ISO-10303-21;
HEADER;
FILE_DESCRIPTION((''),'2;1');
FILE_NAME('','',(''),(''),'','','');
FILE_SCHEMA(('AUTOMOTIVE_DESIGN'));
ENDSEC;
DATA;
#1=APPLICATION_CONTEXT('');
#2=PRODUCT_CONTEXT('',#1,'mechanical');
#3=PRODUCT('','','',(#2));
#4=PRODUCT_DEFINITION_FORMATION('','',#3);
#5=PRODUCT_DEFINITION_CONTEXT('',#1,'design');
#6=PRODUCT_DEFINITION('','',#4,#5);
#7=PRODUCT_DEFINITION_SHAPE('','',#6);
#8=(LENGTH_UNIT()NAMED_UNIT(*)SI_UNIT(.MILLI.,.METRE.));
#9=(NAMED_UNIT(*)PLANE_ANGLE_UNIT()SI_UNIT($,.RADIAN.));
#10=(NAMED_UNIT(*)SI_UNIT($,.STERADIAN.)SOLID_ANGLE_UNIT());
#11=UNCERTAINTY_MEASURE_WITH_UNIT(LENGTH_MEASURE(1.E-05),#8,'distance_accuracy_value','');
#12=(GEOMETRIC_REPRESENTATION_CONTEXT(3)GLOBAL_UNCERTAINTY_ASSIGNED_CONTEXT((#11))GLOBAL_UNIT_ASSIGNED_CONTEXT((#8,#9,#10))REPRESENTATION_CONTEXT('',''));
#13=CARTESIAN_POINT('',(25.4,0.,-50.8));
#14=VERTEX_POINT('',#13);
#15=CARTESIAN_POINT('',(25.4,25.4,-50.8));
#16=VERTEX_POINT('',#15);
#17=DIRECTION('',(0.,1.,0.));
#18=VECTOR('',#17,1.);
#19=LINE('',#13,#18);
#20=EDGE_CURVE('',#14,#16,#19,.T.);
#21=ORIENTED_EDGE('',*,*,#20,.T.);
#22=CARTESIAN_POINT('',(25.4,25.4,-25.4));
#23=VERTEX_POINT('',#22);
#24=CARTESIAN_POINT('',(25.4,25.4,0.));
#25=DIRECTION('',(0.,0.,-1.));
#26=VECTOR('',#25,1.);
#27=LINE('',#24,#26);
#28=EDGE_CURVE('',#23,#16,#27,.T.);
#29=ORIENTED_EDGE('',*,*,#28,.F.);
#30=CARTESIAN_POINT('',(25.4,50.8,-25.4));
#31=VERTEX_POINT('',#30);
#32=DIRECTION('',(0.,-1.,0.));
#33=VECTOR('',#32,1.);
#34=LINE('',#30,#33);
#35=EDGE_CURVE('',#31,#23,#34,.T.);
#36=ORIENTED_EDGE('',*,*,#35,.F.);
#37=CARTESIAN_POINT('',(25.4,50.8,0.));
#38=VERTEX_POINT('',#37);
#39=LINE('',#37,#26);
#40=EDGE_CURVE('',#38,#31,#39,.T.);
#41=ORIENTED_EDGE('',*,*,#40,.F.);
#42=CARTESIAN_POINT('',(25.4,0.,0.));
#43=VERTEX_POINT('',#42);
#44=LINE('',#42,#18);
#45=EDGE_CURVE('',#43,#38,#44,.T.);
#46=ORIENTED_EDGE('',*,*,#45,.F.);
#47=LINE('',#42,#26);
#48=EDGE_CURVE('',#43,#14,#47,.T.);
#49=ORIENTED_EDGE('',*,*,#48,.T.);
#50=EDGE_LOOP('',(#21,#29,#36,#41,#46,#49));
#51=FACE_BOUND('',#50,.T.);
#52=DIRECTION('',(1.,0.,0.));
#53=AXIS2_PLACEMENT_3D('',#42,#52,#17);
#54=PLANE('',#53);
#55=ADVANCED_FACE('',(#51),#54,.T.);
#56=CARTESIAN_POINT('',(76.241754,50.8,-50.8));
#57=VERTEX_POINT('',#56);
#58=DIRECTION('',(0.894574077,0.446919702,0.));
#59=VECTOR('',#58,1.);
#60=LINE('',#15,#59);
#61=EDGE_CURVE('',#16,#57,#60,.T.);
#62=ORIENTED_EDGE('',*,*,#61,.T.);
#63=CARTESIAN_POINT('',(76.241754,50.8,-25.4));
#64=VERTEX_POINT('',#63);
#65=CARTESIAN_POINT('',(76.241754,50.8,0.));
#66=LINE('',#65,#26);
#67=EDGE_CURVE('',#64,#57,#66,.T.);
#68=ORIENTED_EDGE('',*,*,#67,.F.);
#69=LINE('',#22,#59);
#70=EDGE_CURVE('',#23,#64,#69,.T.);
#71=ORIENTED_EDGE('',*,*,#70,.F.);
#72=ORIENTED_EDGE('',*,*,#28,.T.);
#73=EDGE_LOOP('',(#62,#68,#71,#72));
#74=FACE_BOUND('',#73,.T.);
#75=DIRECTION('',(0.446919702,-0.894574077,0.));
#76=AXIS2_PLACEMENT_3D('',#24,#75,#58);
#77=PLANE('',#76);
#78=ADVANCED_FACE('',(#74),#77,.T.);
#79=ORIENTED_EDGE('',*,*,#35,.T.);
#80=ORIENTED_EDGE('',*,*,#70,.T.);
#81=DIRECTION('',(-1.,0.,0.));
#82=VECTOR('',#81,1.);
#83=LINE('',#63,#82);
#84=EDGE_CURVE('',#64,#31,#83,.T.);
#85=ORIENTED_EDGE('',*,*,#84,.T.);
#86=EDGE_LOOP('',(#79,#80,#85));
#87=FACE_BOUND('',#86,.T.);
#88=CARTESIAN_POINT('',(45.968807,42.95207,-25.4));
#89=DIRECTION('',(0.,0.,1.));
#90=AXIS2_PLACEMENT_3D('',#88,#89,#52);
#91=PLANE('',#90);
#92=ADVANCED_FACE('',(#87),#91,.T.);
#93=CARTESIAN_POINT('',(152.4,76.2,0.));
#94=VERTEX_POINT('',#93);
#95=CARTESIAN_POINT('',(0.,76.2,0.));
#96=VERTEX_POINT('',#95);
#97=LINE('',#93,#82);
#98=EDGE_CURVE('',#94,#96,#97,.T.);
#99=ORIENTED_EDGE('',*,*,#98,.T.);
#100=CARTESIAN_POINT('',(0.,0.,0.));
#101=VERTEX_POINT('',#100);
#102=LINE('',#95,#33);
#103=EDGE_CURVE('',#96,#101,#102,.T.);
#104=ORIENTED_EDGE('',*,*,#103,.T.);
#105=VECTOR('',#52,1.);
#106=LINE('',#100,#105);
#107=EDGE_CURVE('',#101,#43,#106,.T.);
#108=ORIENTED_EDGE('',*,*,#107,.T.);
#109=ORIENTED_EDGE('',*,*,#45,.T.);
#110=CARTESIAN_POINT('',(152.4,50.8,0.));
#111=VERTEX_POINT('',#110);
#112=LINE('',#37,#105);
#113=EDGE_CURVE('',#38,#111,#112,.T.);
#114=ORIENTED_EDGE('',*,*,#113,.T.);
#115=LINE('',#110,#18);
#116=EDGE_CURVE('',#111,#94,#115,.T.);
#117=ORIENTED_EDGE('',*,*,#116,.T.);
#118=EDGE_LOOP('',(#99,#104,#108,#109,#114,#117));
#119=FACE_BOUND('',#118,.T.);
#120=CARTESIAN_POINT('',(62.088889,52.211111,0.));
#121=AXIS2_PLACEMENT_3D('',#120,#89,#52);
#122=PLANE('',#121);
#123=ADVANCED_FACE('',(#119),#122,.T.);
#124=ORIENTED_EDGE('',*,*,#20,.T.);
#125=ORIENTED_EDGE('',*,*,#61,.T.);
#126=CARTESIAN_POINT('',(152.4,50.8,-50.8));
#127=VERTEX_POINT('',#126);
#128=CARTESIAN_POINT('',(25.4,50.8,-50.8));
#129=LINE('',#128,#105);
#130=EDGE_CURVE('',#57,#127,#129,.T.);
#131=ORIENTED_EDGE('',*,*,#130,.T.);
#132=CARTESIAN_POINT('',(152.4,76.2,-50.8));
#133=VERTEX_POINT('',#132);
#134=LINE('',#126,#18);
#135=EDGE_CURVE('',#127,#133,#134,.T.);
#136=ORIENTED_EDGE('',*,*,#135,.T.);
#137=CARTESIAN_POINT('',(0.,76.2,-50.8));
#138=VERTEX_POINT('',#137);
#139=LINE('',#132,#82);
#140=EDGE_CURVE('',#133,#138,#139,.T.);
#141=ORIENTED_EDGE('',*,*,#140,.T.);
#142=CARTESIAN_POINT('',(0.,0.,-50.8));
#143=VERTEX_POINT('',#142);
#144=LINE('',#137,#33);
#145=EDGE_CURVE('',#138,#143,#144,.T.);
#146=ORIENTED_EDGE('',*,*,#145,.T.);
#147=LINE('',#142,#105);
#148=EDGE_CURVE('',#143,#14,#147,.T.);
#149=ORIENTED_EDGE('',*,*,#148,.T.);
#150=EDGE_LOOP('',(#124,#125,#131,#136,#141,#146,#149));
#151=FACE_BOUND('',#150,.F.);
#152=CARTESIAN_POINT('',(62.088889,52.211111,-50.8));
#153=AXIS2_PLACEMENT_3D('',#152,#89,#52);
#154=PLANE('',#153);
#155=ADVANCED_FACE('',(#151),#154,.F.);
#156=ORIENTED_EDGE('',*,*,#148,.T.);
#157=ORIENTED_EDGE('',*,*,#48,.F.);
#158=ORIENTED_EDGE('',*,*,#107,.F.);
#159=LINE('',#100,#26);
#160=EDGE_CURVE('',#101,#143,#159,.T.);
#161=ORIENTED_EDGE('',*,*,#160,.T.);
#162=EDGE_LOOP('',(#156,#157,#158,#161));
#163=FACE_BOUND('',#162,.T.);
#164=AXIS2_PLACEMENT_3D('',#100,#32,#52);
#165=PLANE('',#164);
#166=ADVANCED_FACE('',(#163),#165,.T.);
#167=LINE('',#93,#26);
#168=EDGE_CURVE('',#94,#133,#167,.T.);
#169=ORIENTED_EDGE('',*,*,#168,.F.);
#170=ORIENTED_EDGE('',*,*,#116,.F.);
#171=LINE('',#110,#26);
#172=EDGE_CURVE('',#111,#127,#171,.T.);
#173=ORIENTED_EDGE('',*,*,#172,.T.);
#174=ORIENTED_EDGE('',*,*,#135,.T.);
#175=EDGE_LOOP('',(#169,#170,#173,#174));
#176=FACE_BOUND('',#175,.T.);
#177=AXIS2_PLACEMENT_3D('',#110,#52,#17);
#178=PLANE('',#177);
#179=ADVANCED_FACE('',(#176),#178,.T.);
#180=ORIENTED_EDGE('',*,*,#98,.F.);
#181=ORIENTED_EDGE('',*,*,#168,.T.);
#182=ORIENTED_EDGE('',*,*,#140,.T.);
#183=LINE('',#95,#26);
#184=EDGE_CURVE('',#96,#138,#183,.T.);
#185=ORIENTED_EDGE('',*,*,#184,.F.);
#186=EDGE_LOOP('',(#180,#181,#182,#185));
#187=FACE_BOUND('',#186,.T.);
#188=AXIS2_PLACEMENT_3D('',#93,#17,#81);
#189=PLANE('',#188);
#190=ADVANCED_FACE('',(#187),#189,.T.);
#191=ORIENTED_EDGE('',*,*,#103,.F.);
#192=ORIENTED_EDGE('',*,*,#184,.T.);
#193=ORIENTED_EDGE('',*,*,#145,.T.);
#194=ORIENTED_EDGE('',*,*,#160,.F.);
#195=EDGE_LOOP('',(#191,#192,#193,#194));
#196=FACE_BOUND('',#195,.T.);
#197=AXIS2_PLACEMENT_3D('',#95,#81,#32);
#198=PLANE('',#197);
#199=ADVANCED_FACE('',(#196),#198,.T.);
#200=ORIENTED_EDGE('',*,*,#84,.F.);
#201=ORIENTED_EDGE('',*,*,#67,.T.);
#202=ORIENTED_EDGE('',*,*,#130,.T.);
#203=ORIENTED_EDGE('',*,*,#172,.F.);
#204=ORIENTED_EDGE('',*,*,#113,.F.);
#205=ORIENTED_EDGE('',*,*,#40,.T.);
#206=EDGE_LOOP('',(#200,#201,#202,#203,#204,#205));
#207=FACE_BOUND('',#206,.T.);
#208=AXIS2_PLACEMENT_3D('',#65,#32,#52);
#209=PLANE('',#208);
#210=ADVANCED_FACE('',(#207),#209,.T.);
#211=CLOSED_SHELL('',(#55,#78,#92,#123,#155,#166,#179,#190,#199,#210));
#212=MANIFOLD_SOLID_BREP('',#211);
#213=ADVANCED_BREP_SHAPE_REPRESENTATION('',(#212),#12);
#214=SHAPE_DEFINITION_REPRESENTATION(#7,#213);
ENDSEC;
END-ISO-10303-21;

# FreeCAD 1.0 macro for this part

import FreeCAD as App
import Part
import Sketcher

V = App.Vector
Q = App.Units.Quantity


def add_polygon(sketch, points):
    """Adds a closed chain of lines whose ends are joined by coincident constraints."""
    first, n = sketch.GeometryCount, len(points)
    for a, b in zip(points, points[1:] + points[:1]):
        sketch.addGeometry(Part.LineSegment(App.Vector(*a, 0), App.Vector(*b, 0)), False)
    for i in range(n):
        sketch.addConstraint(Sketcher.Constraint("Coincident", first + i, 2, first + (i + 1) % n, 1))

doc = App.newDocument("Part")
body = doc.addObject("PartDesign::Body", "Body")

# Sketch on XY plane
sketch1 = body.newObject("Sketcher::SketchObject", "Sketch")
sketch1.AttachmentSupport = (doc.getObject("XY_Plane"), [""])
sketch1.MapMode = "FlatFace"
add_polygon(sketch1, [(0, 76), (0, 0), (25, 0), (25, 25), (76, 51), (152, 51), (152, 76)])  # lines 0-6
sketch1.addConstraint([
    Sketcher.Constraint("Vertical", 0),
    Sketcher.Constraint("Horizontal", 1),
    Sketcher.Constraint("Vertical", 2),
    Sketcher.Constraint("Horizontal", 4),
    Sketcher.Constraint("Vertical", 5),
    Sketcher.Constraint("Horizontal", 6),
    Sketcher.Constraint("Coincident", 0, 2, -1, 1),
    Sketcher.Constraint("Equal", 1, 2),
    Sketcher.Constraint("Equal", 2, 5),
    Sketcher.Constraint("DistanceX", 1, 1, 1, 2, Q("1 in")),
    Sketcher.Constraint("DistanceX", 6, 2, 6, 1, Q("6 in")),
    Sketcher.Constraint("DistanceY", 0, 2, 0, 1, Q("3 in")),
    Sketcher.Constraint("DistanceX", 4, 1, 4, 2, 76.158246),
])
pad1 = body.newObject("PartDesign::Pad", "Pad")
pad1.Profile = sketch1
pad1.Length = Q("2 in")
pad1.Reversed = True

# Sketch on XY plane
sketch2 = body.newObject("Sketcher::SketchObject", "Sketch001")
sketch2.AttachmentSupport = (doc.getObject("XY_Plane"), [""])
sketch2.MapMode = "FlatFace"
add_polygon(sketch2, [(25, 51), (25, 25), (76, 51)])  # lines 0-2
sketch2.addConstraint([
    Sketcher.Constraint("Vertical", 0),
    Sketcher.Constraint("Horizontal", 2),
    Sketcher.Constraint("DistanceY", 0, 2, 0, 1, Q("1 in")),
    Sketcher.Constraint("DistanceX", -1, 1, 0, 2, Q("1 in")),
    Sketcher.Constraint("DistanceY", -1, 1, 0, 2, Q("1 in")),
    Sketcher.Constraint("DistanceX", 2, 2, 2, 1, 50.841754),
])
pocket1 = body.newObject("PartDesign::Pocket", "Pocket")
pocket1.Profile = sketch2
pocket1.Length = Q("1 in")

doc.recompute()
